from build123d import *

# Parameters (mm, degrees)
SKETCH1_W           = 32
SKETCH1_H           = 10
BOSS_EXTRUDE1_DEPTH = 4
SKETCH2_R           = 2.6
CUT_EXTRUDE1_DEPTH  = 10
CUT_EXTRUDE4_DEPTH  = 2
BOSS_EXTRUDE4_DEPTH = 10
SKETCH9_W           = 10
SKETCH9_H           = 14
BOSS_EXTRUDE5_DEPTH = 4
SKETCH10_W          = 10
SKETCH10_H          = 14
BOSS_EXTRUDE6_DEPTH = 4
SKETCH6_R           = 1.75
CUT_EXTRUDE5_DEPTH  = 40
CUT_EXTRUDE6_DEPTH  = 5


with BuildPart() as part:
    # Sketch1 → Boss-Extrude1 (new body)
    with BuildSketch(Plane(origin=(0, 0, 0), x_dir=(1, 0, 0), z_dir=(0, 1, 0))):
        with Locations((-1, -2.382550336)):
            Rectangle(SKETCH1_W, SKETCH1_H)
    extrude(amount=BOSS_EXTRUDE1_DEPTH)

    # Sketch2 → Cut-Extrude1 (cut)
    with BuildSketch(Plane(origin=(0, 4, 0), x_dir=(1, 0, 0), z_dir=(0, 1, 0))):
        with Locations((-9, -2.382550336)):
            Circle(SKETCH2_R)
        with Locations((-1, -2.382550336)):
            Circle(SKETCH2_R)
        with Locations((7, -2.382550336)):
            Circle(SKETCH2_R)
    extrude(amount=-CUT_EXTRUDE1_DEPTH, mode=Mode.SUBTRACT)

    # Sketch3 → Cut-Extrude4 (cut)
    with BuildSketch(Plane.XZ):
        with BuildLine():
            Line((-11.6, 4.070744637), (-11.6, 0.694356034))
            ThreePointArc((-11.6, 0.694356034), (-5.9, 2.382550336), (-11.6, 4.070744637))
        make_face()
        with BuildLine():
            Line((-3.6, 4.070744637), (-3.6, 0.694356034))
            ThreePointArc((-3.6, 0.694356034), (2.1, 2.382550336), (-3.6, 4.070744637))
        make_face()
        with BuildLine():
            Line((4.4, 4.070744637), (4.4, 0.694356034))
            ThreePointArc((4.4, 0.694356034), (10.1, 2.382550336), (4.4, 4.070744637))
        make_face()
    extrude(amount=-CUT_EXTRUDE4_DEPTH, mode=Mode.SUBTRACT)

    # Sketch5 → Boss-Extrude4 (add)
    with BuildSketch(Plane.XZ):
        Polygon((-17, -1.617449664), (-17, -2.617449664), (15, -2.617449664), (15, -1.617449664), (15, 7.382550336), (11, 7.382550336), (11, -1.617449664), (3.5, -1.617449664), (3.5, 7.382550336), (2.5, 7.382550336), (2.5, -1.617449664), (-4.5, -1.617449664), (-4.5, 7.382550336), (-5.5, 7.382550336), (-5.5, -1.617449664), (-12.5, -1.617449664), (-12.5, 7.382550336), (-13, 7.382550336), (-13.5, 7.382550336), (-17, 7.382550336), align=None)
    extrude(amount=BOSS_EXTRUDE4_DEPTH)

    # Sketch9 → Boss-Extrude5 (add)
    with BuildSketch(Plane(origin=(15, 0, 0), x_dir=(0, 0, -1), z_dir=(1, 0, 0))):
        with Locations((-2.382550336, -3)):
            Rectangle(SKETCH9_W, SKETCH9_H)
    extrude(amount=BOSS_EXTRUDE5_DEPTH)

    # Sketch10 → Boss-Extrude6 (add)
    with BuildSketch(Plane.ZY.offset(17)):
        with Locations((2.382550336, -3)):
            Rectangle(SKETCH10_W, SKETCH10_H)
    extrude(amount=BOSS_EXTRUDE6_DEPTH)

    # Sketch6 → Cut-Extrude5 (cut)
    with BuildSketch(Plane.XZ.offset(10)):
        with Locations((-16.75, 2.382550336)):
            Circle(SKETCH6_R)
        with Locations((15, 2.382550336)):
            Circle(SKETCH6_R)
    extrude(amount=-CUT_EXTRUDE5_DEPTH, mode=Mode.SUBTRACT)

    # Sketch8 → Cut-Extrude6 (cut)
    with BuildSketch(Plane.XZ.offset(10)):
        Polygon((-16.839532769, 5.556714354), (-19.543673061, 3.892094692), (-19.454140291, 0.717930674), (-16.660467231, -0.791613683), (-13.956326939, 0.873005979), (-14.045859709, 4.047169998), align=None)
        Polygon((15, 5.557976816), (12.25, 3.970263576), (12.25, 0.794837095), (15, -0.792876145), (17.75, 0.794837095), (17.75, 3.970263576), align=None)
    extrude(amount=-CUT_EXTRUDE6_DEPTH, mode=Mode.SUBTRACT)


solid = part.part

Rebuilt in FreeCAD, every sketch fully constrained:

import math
import FreeCAD as App
import Part
import Sketcher
Q = App.Units.Quantity


def add_polygon(sketch, points):
    """Adds a closed chain of lines whose ends are joined by coincident constraints."""
    first, n = sketch.GeometryCount, len(points)
    for a, b in zip(points, points[1:] + points[:1]):
        sketch.addGeometry(Part.LineSegment(App.Vector(*a, 0), App.Vector(*b, 0)), False)
    for i in range(n):
        sketch.addConstraint(Sketcher.Constraint("Coincident", first + i, 2, first + (i + 1) % n, 1))

doc = App.newDocument("Part")
body = doc.addObject("PartDesign::Body", "Body")

# Sketch on XZ plane
sketch1 = body.newObject("Sketcher::SketchObject", "Sketch")
sketch1.AttachmentSupport = (doc.getObject("XZ_Plane"), [""])
sketch1.MapMode = "FlatFace"
add_polygon(sketch1, [(-17, -3), (-17, 7), (15, 7), (15, -3)])  # lines 0-3
sketch1.addConstraint([
    Sketcher.Constraint("Vertical", 0),
    Sketcher.Constraint("Horizontal", 1),
    Sketcher.Constraint("Vertical", 2),
    Sketcher.Constraint("Horizontal", 3),
    Sketcher.Constraint("DistanceX", 1, 1, 1, 2, 32.0),
    Sketcher.Constraint("DistanceY", 0, 1, 0, 2, 10.0),
    Sketcher.Constraint("DistanceX", 0, 2, -1, 1, 17.0),
    Sketcher.Constraint("DistanceY", -1, 1, 0, 2, 7.38255),
])
pad1 = body.newObject("PartDesign::Pad", "Pad")
pad1.Profile = sketch1
pad1.Length = 4
pad1.Reversed = True

# Sketch on XZ plane
sketch2 = body.newObject("Sketcher::SketchObject", "Sketch001")
sketch2.AttachmentSupport = (doc.getObject("XZ_Plane"), [""])
sketch2.MapMode = "FlatFace"
sketch2.AttachmentOffset = App.Placement(App.Vector(0, 0, -4), App.Rotation())
sketch2.addGeometry([
    Part.Circle(App.Vector(-9, 2.4, 0), App.Vector(0, 0, 1), 2.6),
    Part.Circle(App.Vector(-1, 2.4, 0), App.Vector(0, 0, 1), 2.6),
    Part.Circle(App.Vector(7, 2.4, 0), App.Vector(0, 0, 1), 2.6),
], False)
sketch2.addConstraint([
    Sketcher.Constraint("Equal", 0, 1),
    Sketcher.Constraint("Equal", 1, 2),
    Sketcher.Constraint("Horizontal", 0, 3, 1, 3),
    Sketcher.Constraint("Horizontal", 1, 3, 2, 3),
    Sketcher.Constraint("Diameter", 0, 5.2),
    Sketcher.Constraint("DistanceX", 0, 3, -1, 1, 9.0),
    Sketcher.Constraint("DistanceX", 1, 3, -1, 1, 1.0),
    Sketcher.Constraint("DistanceX", -1, 1, 2, 3, 7.0),
    Sketcher.Constraint("DistanceY", -1, 1, 0, 3, 2.38255),
])
pocket1 = body.newObject("PartDesign::Pocket", "Pocket")
pocket1.Profile = sketch2
pocket1.Length = 10
pocket1.Reversed = True

# Sketch on XZ plane
sketch3 = body.newObject("Sketcher::SketchObject", "Sketch002")
sketch3.AttachmentSupport = (doc.getObject("XZ_Plane"), [""])
sketch3.MapMode = "FlatFace"
sketch3.addGeometry([
    Part.LineSegment(App.Vector(-11.6, 4.1, 0), App.Vector(-11.6, 0.7, 0)),  # 0
    Part.ArcOfCircle(Part.Circle(App.Vector(-9, 2.4, 0), App.Vector(0, 0, 1), 3.1), math.radians(-147), math.radians(147)),  # 1
    Part.LineSegment(App.Vector(-3.6, 4.1, 0), App.Vector(-3.6, 0.7, 0)),  # 2
    Part.ArcOfCircle(Part.Circle(App.Vector(-1, 2.4, 0), App.Vector(0, 0, 1), 3.1), math.radians(-147), math.radians(147)),  # 3
    Part.LineSegment(App.Vector(4.4, 4.1, 0), App.Vector(4.4, 0.7, 0)),  # 4
    Part.ArcOfCircle(Part.Circle(App.Vector(7, 2.4, 0), App.Vector(0, 0, 1), 3.1), math.radians(-147), math.radians(147)),  # 5
], False)
sketch3.addConstraint([
    Sketcher.Constraint("Coincident", 0, 1, 1, 2),
    Sketcher.Constraint("Coincident", 1, 1, 0, 2),
    Sketcher.Constraint("Coincident", 2, 1, 3, 2),
    Sketcher.Constraint("Coincident", 3, 1, 2, 2),
    Sketcher.Constraint("Coincident", 4, 1, 5, 2),
    Sketcher.Constraint("Coincident", 5, 1, 4, 2),
    Sketcher.Constraint("Vertical", 0),
    Sketcher.Constraint("Vertical", 2),
    Sketcher.Constraint("Vertical", 4),
    Sketcher.Constraint("Equal", 1, 3),
    Sketcher.Constraint("Equal", 3, 5),
    Sketcher.Constraint("Horizontal", 1, 3, 3, 3),
    Sketcher.Constraint("Horizontal", 3, 3, 5, 3),
    Sketcher.Constraint("Horizontal", 0, 1, 2, 1),
    Sketcher.Constraint("Horizontal", 2, 1, 4, 1),
    Sketcher.Constraint("Radius", 1, 3.1),
    Sketcher.Constraint("DistanceX", 1, 3, -1, 1, 9.0),
    Sketcher.Constraint("DistanceX", 3, 3, -1, 1, 1.0),
    Sketcher.Constraint("DistanceX", -1, 1, 5, 3, 7.0),
    Sketcher.Constraint("DistanceX", 0, 1, -1, 1, 11.6),
    Sketcher.Constraint("DistanceY", -1, 1, 1, 3, 2.38255),
])
pocket2 = body.newObject("PartDesign::Pocket", "Pocket001")
pocket2.Profile = sketch3
pocket2.Length = 2

# Sketch on XZ plane
sketch4 = body.newObject("Sketcher::SketchObject", "Sketch003")
sketch4.AttachmentSupport = (doc.getObject("XZ_Plane"), [""])
sketch4.MapMode = "FlatFace"
add_polygon(sketch4, [(-17, -2.6), (15, -2.6), (15, 7.4), (11, 7.4), (11, -1.6), (3.5, -1.6), (3.5, 7.4), (2.5, 7.4), (2.5, -1.6), (-4.5, -1.6), (-4.5, 7.4), (-5.5, 7.4), (-5.5, -1.6), (-12.5, -1.6), (-12.5, 7.4), (-17, 7.4)])  # lines 0-15
sketch4.addConstraint([
    Sketcher.Constraint("Horizontal", 0),
    Sketcher.Constraint("Vertical", 1),
    Sketcher.Constraint("Horizontal", 2),
    Sketcher.Constraint("Vertical", 3),
    Sketcher.Constraint("Horizontal", 4),
    Sketcher.Constraint("Vertical", 5),
    Sketcher.Constraint("Horizontal", 6),
    Sketcher.Constraint("Vertical", 7),
    Sketcher.Constraint("Horizontal", 8),
    Sketcher.Constraint("Vertical", 9),
    Sketcher.Constraint("Horizontal", 10),
    Sketcher.Constraint("Vertical", 11),
    Sketcher.Constraint("Horizontal", 12),
    Sketcher.Constraint("Vertical", 13),
    Sketcher.Constraint("Horizontal", 14),
    Sketcher.Constraint("Vertical", 15),
    Sketcher.Constraint("Horizontal", 2, 2, 5, 2),
    Sketcher.Constraint("Horizontal", 4, 2, 7, 2),
    Sketcher.Constraint("Horizontal", 6, 2, 9, 2),
    Sketcher.Constraint("Horizontal", 8, 2, 11, 2),
    Sketcher.Constraint("Horizontal", 10, 2, 13, 2),
    Sketcher.Constraint("Equal", 6, 10),
    Sketcher.Constraint("Equal", 8, 12),
    Sketcher.Constraint("DistanceX", 0, 1, 0, 2, 32.0),
    Sketcher.Constraint("DistanceX", 2, 2, 2, 1, 4.0),
    Sketcher.Constraint("DistanceX", 6, 2, 6, 1, 1.0),
    Sketcher.Constraint("DistanceX", 8, 2, 8, 1, 7.0),
    Sketcher.Constraint("DistanceY", 1, 1, 1, 2, 10.0),
    Sketcher.Constraint("DistanceY", 3, 2, 3, 1, 9.0),
    Sketcher.Constraint("DistanceX", 4, 2, 4, 1, 7.5),
    Sketcher.Constraint("DistanceX", -1, 1, 0, 2, 15.0),
    Sketcher.Constraint("DistanceY", 0, 2, -1, 1, 2.61745),
])
pad2 = body.newObject("PartDesign::Pad", "Pad001")
pad2.Profile = sketch4
pad2.Length = 10

# Sketch on YZ plane
sketch5 = body.newObject("Sketcher::SketchObject", "Sketch004")
sketch5.AttachmentSupport = (doc.getObject("YZ_Plane"), [""])
sketch5.MapMode = "FlatFace"
sketch5.AttachmentOffset = App.Placement(App.Vector(0, 0, 15), App.Rotation())
add_polygon(sketch5, [(4, 7), (-10, 7), (-10, -3), (4, -3)])  # lines 0-3
sketch5.addConstraint([
    Sketcher.Constraint("Horizontal", 0),
    Sketcher.Constraint("Vertical", 1),
    Sketcher.Constraint("Horizontal", 2),
    Sketcher.Constraint("Vertical", 3),
    Sketcher.Constraint("DistanceX", 0, 2, 0, 1, 14.0),
    Sketcher.Constraint("DistanceY", 1, 2, 1, 1, 10.0),
    Sketcher.Constraint("DistanceX", 0, 2, -1, 1, 10.0),
    Sketcher.Constraint("DistanceY", -1, 1, 0, 2, 7.38255),
])
pad3 = body.newObject("PartDesign::Pad", "Pad002")
pad3.Profile = sketch5
pad3.Length = 4

# Sketch on YZ plane
sketch6 = body.newObject("Sketcher::SketchObject", "Sketch005")
sketch6.AttachmentSupport = (doc.getObject("YZ_Plane"), [""])
sketch6.MapMode = "FlatFace"
sketch6.AttachmentOffset = App.Placement(App.Vector(0, 0, -17), App.Rotation())
add_polygon(sketch6, [(4, -3), (-10, -3), (-10, 7), (4, 7)])  # lines 0-3
sketch6.addConstraint([
    Sketcher.Constraint("Horizontal", 0),
    Sketcher.Constraint("Vertical", 1),
    Sketcher.Constraint("Horizontal", 2),
    Sketcher.Constraint("Vertical", 3),
    Sketcher.Constraint("DistanceX", 0, 2, 0, 1, 14.0),
    Sketcher.Constraint("DistanceY", 1, 1, 1, 2, 10.0),
    Sketcher.Constraint("DistanceX", 0, 2, -1, 1, 10.0),
    Sketcher.Constraint("DistanceY", 0, 2, -1, 1, 2.61745),
])
pad4 = body.newObject("PartDesign::Pad", "Pad003")
pad4.Profile = sketch6
pad4.Length = 4
pad4.Reversed = True

# Sketch on XZ plane
sketch7 = body.newObject("Sketcher::SketchObject", "Sketch006")
sketch7.AttachmentSupport = (doc.getObject("XZ_Plane"), [""])
sketch7.MapMode = "FlatFace"
sketch7.AttachmentOffset = App.Placement(App.Vector(0, 0, 10), App.Rotation())
sketch7.addGeometry([
    Part.Circle(App.Vector(-16.8, 2.4, 0), App.Vector(0, 0, 1), 1.8),
    Part.Circle(App.Vector(15, 2.4, 0), App.Vector(0, 0, 1), 1.8),
], False)
sketch7.addConstraint([
    Sketcher.Constraint("Equal", 0, 1),
    Sketcher.Constraint("Horizontal", 0, 3, 1, 3),
    Sketcher.Constraint("Diameter", 0, 3.5),
    Sketcher.Constraint("DistanceX", -1, 1, 1, 3, 15.0),
    Sketcher.Constraint("DistanceX", 0, 3, -1, 1, 16.75),
    Sketcher.Constraint("DistanceY", -1, 1, 0, 3, 2.38255),
])
pocket3 = body.newObject("PartDesign::Pocket", "Pocket002")
pocket3.Profile = sketch7
pocket3.Length = 40

# Sketch on XZ plane
sketch8 = body.newObject("Sketcher::SketchObject", "Sketch007")
sketch8.AttachmentSupport = (doc.getObject("XZ_Plane"), [""])
sketch8.MapMode = "FlatFace"
sketch8.AttachmentOffset = App.Placement(App.Vector(0, 0, 10), App.Rotation())
add_polygon(sketch8, [(-16.8, 5.6), (-19.5, 3.9), (-19.5, 0.7), (-16.7, -0.8), (-14, 0.9), (-14, 4)])  # lines 0-5
add_polygon(sketch8, [(15, 5.6), (12.2, 4), (12.2, 0.8), (15, -0.8), (17.8, 0.8), (17.8, 4)])  # lines 6-11
sketch8.addConstraint([
    Sketcher.Constraint("Vertical", 7),
    Sketcher.Constraint("Vertical", 10),
    Sketcher.Constraint("Parallel", 0, 3),
    Sketcher.Constraint("Parallel", 1, 4),
    Sketcher.Constraint("Parallel", 2, 5),
    Sketcher.Constraint("Parallel", 6, 9),
    Sketcher.Constraint("Parallel", 8, 11),
    Sketcher.Constraint("Horizontal", 7, 2, 9, 2),
    Sketcher.Constraint("Horizontal", 6, 2, 10, 2),
    Sketcher.Constraint("Vertical", 8, 2, 11, 2),
    Sketcher.Constraint("Equal", 0, 1),
    Sketcher.Constraint("Equal", 1, 2),
    Sketcher.Constraint("Equal", 2, 3),
    Sketcher.Constraint("Equal", 5, 6),
    Sketcher.Constraint("Angle", 6, Q("-150 deg")),
    Sketcher.Constraint("DistanceX", -1, 1, 8, 2, 15.0),
    Sketcher.Constraint("DistanceX", 7, 2, 9, 2, 5.5),
    Sketcher.Constraint("DistanceY", 7, 2, 7, 1, 3.175426),
    Sketcher.Constraint("DistanceX", 1, 2, -1, 1, 19.45414),
    Sketcher.Constraint("DistanceY", -1, 1, 1, 2, 0.717931),
    Sketcher.Constraint("DistanceX", 4, 2, -1, 1, 14.04586),
    Sketcher.Constraint("DistanceY", -1, 1, 4, 2, 4.04717),
    Sketcher.Constraint("DistanceY", 2, 2, 0, 2, 4.683708),
    Sketcher.Constraint("DistanceY", 6, 2, 5, 2, 1.586451),
])
pocket4 = body.newObject("PartDesign::Pocket", "Pocket003")
pocket4.Profile = sketch8
pocket4.Length = 5

doc.recompute()
